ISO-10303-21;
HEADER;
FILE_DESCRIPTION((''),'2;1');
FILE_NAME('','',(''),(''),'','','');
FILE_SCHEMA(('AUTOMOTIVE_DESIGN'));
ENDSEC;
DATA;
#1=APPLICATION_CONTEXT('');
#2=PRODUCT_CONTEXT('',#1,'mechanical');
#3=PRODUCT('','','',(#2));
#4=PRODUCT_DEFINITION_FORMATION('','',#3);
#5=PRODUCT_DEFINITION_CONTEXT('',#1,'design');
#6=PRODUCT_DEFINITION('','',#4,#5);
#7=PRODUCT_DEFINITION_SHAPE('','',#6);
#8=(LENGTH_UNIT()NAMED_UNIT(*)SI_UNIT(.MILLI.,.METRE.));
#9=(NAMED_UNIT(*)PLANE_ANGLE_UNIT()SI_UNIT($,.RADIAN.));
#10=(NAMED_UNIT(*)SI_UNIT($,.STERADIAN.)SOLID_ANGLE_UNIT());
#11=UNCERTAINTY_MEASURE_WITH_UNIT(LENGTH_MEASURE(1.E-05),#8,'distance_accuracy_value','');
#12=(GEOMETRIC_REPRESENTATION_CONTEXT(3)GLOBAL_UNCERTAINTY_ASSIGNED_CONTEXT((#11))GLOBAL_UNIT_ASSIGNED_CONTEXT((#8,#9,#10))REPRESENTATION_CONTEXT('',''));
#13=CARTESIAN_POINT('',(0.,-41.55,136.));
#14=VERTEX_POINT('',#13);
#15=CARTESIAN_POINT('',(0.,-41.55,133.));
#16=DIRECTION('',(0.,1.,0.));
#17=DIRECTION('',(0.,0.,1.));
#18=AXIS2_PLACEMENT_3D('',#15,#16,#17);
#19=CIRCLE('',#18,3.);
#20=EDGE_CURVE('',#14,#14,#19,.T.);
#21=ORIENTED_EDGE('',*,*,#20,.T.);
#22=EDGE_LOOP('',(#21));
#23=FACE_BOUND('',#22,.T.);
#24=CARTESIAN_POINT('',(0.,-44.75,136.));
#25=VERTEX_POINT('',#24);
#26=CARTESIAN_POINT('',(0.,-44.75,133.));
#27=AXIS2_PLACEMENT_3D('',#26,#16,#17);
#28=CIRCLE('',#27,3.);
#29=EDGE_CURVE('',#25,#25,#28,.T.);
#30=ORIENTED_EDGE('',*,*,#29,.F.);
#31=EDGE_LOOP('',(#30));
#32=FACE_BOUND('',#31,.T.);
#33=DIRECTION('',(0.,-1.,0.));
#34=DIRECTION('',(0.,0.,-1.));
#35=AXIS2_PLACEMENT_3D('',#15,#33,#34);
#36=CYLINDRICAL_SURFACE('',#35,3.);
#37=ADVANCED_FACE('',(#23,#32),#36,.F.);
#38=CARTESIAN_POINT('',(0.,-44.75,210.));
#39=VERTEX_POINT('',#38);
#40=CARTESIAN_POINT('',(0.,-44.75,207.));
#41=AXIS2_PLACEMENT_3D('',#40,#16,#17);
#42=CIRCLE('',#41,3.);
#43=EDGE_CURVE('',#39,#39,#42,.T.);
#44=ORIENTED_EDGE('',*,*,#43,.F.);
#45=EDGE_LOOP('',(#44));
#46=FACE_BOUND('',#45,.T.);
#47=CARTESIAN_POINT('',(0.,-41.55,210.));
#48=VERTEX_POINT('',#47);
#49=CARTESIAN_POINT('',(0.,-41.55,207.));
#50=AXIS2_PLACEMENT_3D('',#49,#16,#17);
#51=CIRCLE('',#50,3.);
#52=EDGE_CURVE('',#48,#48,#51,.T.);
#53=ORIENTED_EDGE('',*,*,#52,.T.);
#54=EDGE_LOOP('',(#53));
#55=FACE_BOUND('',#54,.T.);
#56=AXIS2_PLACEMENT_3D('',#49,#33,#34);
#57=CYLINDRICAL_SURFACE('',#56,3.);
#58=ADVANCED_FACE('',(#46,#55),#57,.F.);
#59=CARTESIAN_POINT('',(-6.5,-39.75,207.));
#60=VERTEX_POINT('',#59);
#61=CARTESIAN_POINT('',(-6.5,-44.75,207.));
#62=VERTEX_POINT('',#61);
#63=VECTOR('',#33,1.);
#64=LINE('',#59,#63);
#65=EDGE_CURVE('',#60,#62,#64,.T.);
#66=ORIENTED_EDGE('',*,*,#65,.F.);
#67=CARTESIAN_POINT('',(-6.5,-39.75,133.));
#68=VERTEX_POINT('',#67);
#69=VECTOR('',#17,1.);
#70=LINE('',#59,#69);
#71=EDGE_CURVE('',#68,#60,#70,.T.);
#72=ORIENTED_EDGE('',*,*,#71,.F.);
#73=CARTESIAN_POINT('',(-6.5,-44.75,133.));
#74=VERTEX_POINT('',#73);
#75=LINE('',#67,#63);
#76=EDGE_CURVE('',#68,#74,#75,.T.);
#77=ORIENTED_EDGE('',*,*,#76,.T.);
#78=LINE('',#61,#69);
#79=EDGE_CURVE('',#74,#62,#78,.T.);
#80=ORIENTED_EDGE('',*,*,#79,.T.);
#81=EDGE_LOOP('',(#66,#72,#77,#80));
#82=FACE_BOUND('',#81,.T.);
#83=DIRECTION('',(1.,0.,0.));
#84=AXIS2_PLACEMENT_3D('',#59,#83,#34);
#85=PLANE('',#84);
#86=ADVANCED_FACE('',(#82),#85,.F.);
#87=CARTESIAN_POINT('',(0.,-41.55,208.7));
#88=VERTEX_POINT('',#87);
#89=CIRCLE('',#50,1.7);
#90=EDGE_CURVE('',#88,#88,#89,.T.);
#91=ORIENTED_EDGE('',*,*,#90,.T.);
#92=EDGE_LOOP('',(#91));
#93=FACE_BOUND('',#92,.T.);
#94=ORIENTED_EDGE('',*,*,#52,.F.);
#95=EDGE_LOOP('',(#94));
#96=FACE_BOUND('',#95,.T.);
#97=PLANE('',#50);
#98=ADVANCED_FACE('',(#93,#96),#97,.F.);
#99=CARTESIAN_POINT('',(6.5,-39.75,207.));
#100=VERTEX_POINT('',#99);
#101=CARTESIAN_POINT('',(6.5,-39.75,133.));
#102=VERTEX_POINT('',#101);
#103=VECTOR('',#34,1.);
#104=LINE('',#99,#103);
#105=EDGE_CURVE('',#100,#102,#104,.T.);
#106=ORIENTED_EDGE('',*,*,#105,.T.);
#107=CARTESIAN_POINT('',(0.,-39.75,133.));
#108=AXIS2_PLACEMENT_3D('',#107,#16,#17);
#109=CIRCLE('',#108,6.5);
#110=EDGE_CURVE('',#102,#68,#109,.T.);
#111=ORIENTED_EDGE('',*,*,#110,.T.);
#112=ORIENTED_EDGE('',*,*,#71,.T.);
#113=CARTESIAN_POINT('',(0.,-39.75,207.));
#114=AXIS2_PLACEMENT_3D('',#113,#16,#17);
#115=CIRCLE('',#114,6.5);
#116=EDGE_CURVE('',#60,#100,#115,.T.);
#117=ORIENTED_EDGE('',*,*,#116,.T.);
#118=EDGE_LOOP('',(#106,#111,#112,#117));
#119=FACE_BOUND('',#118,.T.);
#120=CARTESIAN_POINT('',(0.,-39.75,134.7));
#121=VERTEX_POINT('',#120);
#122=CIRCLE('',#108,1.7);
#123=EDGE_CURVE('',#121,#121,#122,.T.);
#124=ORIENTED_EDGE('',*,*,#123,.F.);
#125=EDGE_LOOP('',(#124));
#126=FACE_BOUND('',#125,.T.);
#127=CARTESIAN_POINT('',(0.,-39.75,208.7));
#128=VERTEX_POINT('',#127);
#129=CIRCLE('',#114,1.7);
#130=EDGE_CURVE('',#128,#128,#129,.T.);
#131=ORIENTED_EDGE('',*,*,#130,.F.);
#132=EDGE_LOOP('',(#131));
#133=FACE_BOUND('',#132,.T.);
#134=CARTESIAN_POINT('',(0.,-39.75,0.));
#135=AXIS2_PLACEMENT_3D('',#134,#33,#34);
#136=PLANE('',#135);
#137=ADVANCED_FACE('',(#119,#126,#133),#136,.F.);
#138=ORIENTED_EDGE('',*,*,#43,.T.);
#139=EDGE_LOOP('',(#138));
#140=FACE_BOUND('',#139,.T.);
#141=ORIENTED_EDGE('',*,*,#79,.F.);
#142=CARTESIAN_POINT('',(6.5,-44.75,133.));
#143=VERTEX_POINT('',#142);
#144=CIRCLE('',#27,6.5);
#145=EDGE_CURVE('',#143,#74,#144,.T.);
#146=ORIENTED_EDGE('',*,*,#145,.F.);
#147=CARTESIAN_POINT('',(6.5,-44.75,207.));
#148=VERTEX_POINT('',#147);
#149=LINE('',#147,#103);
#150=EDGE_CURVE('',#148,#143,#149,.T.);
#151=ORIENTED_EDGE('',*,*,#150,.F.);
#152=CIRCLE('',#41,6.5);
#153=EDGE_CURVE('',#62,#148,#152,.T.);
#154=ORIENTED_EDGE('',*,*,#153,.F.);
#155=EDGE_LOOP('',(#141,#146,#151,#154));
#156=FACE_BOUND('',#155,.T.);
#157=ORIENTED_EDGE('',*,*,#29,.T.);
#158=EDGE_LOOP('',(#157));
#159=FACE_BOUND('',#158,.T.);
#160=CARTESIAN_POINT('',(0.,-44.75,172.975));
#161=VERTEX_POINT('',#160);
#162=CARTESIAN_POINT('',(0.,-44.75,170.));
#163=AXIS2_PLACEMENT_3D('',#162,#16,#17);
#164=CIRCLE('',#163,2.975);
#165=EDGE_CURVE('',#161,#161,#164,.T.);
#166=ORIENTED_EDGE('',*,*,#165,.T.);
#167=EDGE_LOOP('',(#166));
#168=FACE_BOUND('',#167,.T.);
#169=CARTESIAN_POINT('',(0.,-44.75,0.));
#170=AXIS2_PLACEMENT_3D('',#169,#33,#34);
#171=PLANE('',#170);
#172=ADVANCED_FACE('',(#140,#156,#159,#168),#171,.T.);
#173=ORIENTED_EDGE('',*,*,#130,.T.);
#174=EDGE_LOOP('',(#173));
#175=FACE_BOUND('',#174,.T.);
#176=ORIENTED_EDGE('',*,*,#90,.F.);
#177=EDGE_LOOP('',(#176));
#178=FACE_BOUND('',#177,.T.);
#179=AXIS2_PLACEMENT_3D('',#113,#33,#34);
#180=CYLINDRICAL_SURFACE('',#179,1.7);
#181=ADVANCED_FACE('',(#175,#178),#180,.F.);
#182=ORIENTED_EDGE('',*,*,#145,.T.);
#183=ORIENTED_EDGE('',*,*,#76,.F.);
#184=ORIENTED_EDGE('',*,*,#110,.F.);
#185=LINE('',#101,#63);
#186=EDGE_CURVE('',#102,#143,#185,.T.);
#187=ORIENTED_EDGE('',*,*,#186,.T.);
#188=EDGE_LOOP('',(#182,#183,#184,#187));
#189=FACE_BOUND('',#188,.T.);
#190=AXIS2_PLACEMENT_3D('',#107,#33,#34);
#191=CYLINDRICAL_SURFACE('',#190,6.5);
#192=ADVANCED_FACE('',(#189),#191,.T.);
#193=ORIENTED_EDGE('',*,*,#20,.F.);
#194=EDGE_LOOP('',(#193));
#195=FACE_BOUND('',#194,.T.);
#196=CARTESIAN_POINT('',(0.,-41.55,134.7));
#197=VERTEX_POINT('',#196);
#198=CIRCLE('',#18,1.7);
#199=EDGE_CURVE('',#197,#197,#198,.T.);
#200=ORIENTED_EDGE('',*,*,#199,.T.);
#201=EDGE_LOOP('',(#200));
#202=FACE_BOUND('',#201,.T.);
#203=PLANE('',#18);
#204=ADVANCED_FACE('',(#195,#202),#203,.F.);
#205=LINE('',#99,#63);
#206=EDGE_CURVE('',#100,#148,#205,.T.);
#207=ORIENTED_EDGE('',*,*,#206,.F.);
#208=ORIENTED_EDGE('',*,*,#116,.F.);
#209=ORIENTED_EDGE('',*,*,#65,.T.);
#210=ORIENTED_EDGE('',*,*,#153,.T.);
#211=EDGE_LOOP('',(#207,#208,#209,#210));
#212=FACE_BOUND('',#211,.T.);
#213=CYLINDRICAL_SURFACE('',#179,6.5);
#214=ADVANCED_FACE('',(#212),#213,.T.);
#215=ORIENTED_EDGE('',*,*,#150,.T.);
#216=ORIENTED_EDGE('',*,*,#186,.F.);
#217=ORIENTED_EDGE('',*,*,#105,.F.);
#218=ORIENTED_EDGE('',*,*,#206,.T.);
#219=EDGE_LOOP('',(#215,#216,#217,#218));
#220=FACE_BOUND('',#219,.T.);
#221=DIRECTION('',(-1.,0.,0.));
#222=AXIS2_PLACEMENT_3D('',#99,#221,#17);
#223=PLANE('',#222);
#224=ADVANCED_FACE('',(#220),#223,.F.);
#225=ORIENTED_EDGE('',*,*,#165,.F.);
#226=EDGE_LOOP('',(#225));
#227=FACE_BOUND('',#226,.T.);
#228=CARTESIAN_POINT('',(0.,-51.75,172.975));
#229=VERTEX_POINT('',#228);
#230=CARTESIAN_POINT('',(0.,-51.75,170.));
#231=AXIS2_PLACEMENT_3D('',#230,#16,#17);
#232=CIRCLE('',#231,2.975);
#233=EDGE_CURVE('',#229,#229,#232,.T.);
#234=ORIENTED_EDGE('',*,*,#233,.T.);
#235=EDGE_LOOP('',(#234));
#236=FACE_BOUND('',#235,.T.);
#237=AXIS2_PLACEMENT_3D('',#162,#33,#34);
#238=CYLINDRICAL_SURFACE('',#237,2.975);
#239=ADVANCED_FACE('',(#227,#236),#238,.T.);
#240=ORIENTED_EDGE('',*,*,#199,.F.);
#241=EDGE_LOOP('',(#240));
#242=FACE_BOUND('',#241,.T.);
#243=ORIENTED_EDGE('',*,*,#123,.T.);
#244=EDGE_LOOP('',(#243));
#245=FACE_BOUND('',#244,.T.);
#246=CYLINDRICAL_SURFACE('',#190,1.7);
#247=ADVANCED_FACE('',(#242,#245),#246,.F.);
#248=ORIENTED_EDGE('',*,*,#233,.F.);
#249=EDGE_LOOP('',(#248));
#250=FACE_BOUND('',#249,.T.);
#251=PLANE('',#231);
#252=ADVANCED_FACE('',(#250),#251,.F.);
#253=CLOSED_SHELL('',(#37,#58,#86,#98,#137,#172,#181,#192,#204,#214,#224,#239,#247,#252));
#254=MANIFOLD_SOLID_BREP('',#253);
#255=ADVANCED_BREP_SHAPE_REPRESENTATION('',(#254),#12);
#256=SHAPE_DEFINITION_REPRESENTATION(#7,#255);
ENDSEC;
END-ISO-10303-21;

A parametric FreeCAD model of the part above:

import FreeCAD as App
import Part
import Sketcher
from FreeCAD import Vector


def add_polygon(sketch, points):
    """Adds a closed chain of lines whose ends are joined by coincident constraints."""
    first, n = sketch.GeometryCount, len(points)
    for a, b in zip(points, points[1:] + points[:1]):
        sketch.addGeometry(Part.LineSegment(App.Vector(*a, 0), App.Vector(*b, 0)), False)
    for i in range(n):
        sketch.addConstraint(Sketcher.Constraint("Coincident", first + i, 2, first + (i + 1) % n, 1))

doc = App.newDocument("Part")
body = doc.addObject("PartDesign::Body", "Body")

sketch1 = body.newObject("Sketcher::SketchObject", "Sketch")
sketch1.AttachmentSupport = (doc.getObject("XZ_Plane"), [""])
sketch1.MapMode = "FlatFace"
sketch1.AttachmentOffset = App.Placement(Vector(0, 0, 44.75), App.Rotation())
add_polygon(sketch1, [(-6, 133), (-6, 207), (6, 207), (6, 133)])
sketch1.addConstraint(Sketcher.Constraint("Vertical", 0))
sketch1.addConstraint(Sketcher.Constraint("Horizontal", 1))
sketch1.addConstraint(Sketcher.Constraint("Vertical", 2))
sketch1.addConstraint(Sketcher.Constraint("Horizontal", 3))
sketch1.addConstraint(Sketcher.Constraint("DistanceX", 1, 1, 1, 2, 13.0))
sketch1.addConstraint(Sketcher.Constraint("DistanceY", 0, 1, 0, 2, 74.0))
sketch1.addConstraint(Sketcher.Constraint("DistanceY", -1, 1, 0, 2, 207.0))
sketch1.addConstraint(Sketcher.Constraint("DistanceX", 0, 2, -1, 1, 6.5))
pad1 = body.newObject("PartDesign::Pad", "Pad")
pad1.Profile = sketch1
pad1.Length = 5
pad1.Reversed = True

sketch2 = body.newObject("Sketcher::SketchObject", "Sketch001")
sketch2.AttachmentSupport = (doc.getObject("XZ_Plane"), [""])
sketch2.MapMode = "FlatFace"
sketch2.AttachmentOffset = App.Placement(Vector(0, 0, 44.75), App.Rotation())
sketch2.addGeometry(Part.Circle(Vector(0, 133, 0), Vector(0, 0, 1), 6), False)
sketch2.addGeometry(Part.Circle(Vector(0, 207, 0), Vector(0, 0, 1), 6), False)
sketch2.addConstraint(Sketcher.Constraint("Equal", 0, 1))
sketch2.addConstraint(Sketcher.Constraint("PointOnObject", 0, 3, -2))
sketch2.addConstraint(Sketcher.Constraint("PointOnObject", 1, 3, -2))
sketch2.addConstraint(Sketcher.Constraint("Diameter", 0, 13.0))
sketch2.addConstraint(Sketcher.Constraint("DistanceY", -1, 1, 0, 3, 133.0))
sketch2.addConstraint(Sketcher.Constraint("DistanceY", -1, 1, 1, 3, 207.0))
pad2 = body.newObject("PartDesign::Pad", "Pad001")
pad2.Profile = sketch2
pad2.Length = 5
pad2.Reversed = True

sketch3 = body.newObject("Sketcher::SketchObject", "Sketch002")
sketch3.AttachmentSupport = (doc.getObject("XZ_Plane"), [""])
sketch3.MapMode = "FlatFace"
sketch3.AttachmentOffset = App.Placement(Vector(0, 0, 51.75), App.Rotation())
sketch3.addGeometry(Part.Circle(Vector(0, 170, 0), Vector(0, 0, 1), 3), False)
sketch3.addConstraint(Sketcher.Constraint("PointOnObject", 0, 3, -2))
sketch3.addConstraint(Sketcher.Constraint("Diameter", 0, 5.95))
sketch3.addConstraint(Sketcher.Constraint("DistanceY", -1, 1, 0, 3, 170.0))
pad3 = body.newObject("PartDesign::Pad", "Pad002")
pad3.Profile = sketch3
pad3.Length = 7
pad3.Reversed = True

sketch4 = body.newObject("Sketcher::SketchObject", "Sketch003")
sketch4.AttachmentSupport = (doc.getObject("XZ_Plane"), [""])
sketch4.MapMode = "FlatFace"
sketch4.AttachmentOffset = App.Placement(Vector(0, 0, 44.75), App.Rotation())
sketch4.addGeometry(Part.Circle(Vector(0, 133, 0), Vector(0, 0, 1), 1.7), False)
sketch4.addGeometry(Part.Circle(Vector(0, 207, 0), Vector(0, 0, 1), 1.7), False)
sketch4.addConstraint(Sketcher.Constraint("Equal", 0, 1))
sketch4.addConstraint(Sketcher.Constraint("PointOnObject", 0, 3, -2))
sketch4.addConstraint(Sketcher.Constraint("PointOnObject", 1, 3, -2))
sketch4.addConstraint(Sketcher.Constraint("Diameter", 0, 3.4))
sketch4.addConstraint(Sketcher.Constraint("DistanceY", -1, 1, 0, 3, 133.0))
sketch4.addConstraint(Sketcher.Constraint("DistanceY", -1, 1, 1, 3, 207.0))
pocket1 = body.newObject("PartDesign::Pocket", "Pocket")
pocket1.Profile = sketch4
pocket1.Length = 5

sketch5 = body.newObject("Sketcher::SketchObject", "Sketch004")
sketch5.AttachmentSupport = (doc.getObject("XZ_Plane"), [""])
sketch5.MapMode = "FlatFace"
sketch5.AttachmentOffset = App.Placement(Vector(0, 0, 44.75), App.Rotation())
sketch5.addGeometry(Part.Circle(Vector(0, 133, 0), Vector(0, 0, 1), 3), False)
sketch5.addGeometry(Part.Circle(Vector(0, 207, 0), Vector(0, 0, 1), 3), False)
sketch5.addConstraint(Sketcher.Constraint("Equal", 0, 1))
sketch5.addConstraint(Sketcher.Constraint("PointOnObject", 0, 3, -2))
sketch5.addConstraint(Sketcher.Constraint("PointOnObject", 1, 3, -2))
sketch5.addConstraint(Sketcher.Constraint("Diameter", 0, 6.0))
sketch5.addConstraint(Sketcher.Constraint("DistanceY", -1, 1, 0, 3, 133.0))
sketch5.addConstraint(Sketcher.Constraint("DistanceY", -1, 1, 1, 3, 207.0))
pocket2 = body.newObject("PartDesign::Pocket", "Pocket001")
pocket2.Profile = sketch5
pocket2.Length = 3.2

doc.recompute()
